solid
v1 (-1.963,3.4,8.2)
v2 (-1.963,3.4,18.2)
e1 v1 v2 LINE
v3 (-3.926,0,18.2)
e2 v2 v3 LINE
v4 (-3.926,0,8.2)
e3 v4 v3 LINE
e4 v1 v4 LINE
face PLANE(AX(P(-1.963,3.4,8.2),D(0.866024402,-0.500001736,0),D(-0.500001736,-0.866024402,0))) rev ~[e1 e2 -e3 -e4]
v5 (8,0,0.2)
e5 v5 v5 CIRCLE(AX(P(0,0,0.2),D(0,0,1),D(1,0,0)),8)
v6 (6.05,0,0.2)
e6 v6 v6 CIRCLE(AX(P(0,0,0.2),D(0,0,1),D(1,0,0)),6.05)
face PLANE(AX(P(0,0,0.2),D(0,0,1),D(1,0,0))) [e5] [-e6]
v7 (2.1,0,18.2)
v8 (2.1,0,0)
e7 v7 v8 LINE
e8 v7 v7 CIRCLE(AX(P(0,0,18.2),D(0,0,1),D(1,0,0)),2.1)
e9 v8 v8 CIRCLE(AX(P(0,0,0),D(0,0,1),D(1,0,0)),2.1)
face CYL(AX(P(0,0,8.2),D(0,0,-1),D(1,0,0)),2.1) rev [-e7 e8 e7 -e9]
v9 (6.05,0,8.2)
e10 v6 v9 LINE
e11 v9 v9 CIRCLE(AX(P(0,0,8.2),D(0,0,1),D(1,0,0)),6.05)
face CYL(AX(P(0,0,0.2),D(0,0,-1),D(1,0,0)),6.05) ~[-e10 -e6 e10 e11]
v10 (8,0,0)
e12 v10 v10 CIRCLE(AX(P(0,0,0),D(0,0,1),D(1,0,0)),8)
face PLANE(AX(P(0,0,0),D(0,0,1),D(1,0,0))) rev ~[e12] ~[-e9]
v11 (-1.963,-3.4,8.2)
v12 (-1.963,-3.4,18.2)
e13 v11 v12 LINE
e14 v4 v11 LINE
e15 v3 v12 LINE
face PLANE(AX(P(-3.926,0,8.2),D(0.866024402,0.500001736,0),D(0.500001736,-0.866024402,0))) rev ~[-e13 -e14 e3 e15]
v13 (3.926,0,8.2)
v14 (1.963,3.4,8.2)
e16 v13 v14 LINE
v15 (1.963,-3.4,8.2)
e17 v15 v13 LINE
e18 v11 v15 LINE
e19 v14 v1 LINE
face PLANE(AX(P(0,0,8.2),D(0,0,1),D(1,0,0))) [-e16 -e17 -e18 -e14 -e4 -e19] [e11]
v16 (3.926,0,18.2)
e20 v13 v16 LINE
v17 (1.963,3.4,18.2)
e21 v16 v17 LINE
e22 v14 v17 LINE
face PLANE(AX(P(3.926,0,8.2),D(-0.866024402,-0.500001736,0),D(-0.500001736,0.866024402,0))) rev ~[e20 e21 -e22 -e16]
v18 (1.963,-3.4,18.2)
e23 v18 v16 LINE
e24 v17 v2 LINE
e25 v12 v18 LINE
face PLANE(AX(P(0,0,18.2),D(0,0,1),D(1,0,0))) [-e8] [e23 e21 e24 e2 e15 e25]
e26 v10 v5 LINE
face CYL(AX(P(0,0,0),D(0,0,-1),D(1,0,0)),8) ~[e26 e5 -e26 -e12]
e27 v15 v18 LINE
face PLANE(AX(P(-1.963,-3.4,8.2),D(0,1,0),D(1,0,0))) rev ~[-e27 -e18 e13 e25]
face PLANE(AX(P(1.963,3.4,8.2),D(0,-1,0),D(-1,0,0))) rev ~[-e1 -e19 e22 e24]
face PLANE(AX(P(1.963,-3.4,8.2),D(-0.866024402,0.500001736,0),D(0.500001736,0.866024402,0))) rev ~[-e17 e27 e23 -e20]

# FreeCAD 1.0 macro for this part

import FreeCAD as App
import Part
import Sketcher
Q = App.Units.Quantity

doc = App.newDocument("Part")
body = doc.addObject("PartDesign::Body", "Body")

# Sketch on XY plane
sketch1 = body.newObject("Sketcher::SketchObject", "Sketch")
sketch1.AttachmentSupport = (doc.getObject("XY_Plane"), [""])
sketch1.MapMode = "FlatFace"
sketch1.addGeometry([
    Part.Circle(App.Vector(0, 0, 0), App.Vector(0, 0, 1), 8),
    Part.Circle(App.Vector(0, 0, 0), App.Vector(0, 0, 1), 2.1),
], False)
sketch1.addConstraint([
    Sketcher.Constraint("Coincident", 0, 3, -1, 1),
    Sketcher.Constraint("Coincident", 1, 3, -1, 1),
    Sketcher.Constraint("Diameter", 0, 16.0),
    Sketcher.Constraint("Diameter", 1, 4.2),
])
pad1 = body.newObject("PartDesign::Pad", "Pad")
pad1.Profile = sketch1
pad1.Length = 0.2

# Sketch on XY plane
sketch2 = body.newObject("Sketcher::SketchObject", "Sketch001")
sketch2.AttachmentSupport = (doc.getObject("XY_Plane"), [""])
sketch2.MapMode = "FlatFace"
sketch2.AttachmentOffset = App.Placement(App.Vector(0, 0, 0.2), App.Rotation())
sketch2.addGeometry([
    Part.Circle(App.Vector(0, 0, 0), App.Vector(0, 0, 1), 6.05),
    Part.Circle(App.Vector(0, 0, 0), App.Vector(0, 0, 1), 2.1),
], False)
sketch2.addConstraint([
    Sketcher.Constraint("Coincident", 0, 3, -1, 1),
    Sketcher.Constraint("Coincident", 1, 3, -1, 1),
    Sketcher.Constraint("Diameter", 0, 12.1),
    Sketcher.Constraint("Diameter", 1, 4.2),
])
pad2 = body.newObject("PartDesign::Pad", "Pad001")
pad2.Profile = sketch2
pad2.Length = 8

# Sketch on XY plane
sketch3 = body.newObject("Sketcher::SketchObject", "Sketch002")
sketch3.AttachmentSupport = (doc.getObject("XY_Plane"), [""])
sketch3.MapMode = "FlatFace"
sketch3.AttachmentOffset = App.Placement(App.Vector(0, 0, 8.2), App.Rotation())
sketch3.addGeometry([
    Part.LineSegment(App.Vector(1.963, 3.4, 0), App.Vector(-1.963, 3.4, 0)),  # 0
    Part.LineSegment(App.Vector(-1.963, 3.4, 0), App.Vector(-3.926, 0, 0)),  # 1
    Part.LineSegment(App.Vector(-3.926, 0, 0), App.Vector(-1.963, -3.4, 0)),  # 2
    Part.LineSegment(App.Vector(-1.963, -3.4, 0), App.Vector(1.963, -3.4, 0)),  # 3
    Part.LineSegment(App.Vector(1.963, -3.4, 0), App.Vector(3.926, 0, 0)),  # 4
    Part.LineSegment(App.Vector(3.926, 0, 0), App.Vector(1.963, 3.4, 0)),  # 5
    Part.Circle(App.Vector(0, 0, 0), App.Vector(0, 0, 1), 2.1),  # 6
], False)
sketch3.addConstraint([
    Sketcher.Constraint("Coincident", 0, 2, 1, 1),
    Sketcher.Constraint("Coincident", 1, 2, 2, 1),
    Sketcher.Constraint("Coincident", 2, 2, 3, 1),
    Sketcher.Constraint("Coincident", 3, 2, 4, 1),
    Sketcher.Constraint("Coincident", 4, 2, 5, 1),
    Sketcher.Constraint("Coincident", 5, 2, 0, 1),
    Sketcher.Constraint("Horizontal", 0),
    Sketcher.Constraint("Horizontal", 3),
    Sketcher.Constraint("Coincident", 6, 3, -1, 1),
    Sketcher.Constraint("Symmetric", 0, 2, 3, 2, -1, 1),
    Sketcher.Constraint("Symmetric", 1, 2, 4, 2, -1, 1),
    Sketcher.Constraint("PointOnObject", 1, 2, -1),
    Sketcher.Constraint("Parallel", 2, 5),
    Sketcher.Constraint("Vertical", 0, 2, 2, 2),
    Sketcher.Constraint("Diameter", 6, 4.2),
    Sketcher.Constraint("DistanceY", 2, 2, 0, 2, 6.8),
    Sketcher.Constraint("Angle", 1, Q("-120 deg")),
    Sketcher.Constraint("DistanceX", 0, 2, 0, 1, 3.926),
])
pad3 = body.newObject("PartDesign::Pad", "Pad002")
pad3.Profile = sketch3
pad3.Length = 10

doc.recompute()
